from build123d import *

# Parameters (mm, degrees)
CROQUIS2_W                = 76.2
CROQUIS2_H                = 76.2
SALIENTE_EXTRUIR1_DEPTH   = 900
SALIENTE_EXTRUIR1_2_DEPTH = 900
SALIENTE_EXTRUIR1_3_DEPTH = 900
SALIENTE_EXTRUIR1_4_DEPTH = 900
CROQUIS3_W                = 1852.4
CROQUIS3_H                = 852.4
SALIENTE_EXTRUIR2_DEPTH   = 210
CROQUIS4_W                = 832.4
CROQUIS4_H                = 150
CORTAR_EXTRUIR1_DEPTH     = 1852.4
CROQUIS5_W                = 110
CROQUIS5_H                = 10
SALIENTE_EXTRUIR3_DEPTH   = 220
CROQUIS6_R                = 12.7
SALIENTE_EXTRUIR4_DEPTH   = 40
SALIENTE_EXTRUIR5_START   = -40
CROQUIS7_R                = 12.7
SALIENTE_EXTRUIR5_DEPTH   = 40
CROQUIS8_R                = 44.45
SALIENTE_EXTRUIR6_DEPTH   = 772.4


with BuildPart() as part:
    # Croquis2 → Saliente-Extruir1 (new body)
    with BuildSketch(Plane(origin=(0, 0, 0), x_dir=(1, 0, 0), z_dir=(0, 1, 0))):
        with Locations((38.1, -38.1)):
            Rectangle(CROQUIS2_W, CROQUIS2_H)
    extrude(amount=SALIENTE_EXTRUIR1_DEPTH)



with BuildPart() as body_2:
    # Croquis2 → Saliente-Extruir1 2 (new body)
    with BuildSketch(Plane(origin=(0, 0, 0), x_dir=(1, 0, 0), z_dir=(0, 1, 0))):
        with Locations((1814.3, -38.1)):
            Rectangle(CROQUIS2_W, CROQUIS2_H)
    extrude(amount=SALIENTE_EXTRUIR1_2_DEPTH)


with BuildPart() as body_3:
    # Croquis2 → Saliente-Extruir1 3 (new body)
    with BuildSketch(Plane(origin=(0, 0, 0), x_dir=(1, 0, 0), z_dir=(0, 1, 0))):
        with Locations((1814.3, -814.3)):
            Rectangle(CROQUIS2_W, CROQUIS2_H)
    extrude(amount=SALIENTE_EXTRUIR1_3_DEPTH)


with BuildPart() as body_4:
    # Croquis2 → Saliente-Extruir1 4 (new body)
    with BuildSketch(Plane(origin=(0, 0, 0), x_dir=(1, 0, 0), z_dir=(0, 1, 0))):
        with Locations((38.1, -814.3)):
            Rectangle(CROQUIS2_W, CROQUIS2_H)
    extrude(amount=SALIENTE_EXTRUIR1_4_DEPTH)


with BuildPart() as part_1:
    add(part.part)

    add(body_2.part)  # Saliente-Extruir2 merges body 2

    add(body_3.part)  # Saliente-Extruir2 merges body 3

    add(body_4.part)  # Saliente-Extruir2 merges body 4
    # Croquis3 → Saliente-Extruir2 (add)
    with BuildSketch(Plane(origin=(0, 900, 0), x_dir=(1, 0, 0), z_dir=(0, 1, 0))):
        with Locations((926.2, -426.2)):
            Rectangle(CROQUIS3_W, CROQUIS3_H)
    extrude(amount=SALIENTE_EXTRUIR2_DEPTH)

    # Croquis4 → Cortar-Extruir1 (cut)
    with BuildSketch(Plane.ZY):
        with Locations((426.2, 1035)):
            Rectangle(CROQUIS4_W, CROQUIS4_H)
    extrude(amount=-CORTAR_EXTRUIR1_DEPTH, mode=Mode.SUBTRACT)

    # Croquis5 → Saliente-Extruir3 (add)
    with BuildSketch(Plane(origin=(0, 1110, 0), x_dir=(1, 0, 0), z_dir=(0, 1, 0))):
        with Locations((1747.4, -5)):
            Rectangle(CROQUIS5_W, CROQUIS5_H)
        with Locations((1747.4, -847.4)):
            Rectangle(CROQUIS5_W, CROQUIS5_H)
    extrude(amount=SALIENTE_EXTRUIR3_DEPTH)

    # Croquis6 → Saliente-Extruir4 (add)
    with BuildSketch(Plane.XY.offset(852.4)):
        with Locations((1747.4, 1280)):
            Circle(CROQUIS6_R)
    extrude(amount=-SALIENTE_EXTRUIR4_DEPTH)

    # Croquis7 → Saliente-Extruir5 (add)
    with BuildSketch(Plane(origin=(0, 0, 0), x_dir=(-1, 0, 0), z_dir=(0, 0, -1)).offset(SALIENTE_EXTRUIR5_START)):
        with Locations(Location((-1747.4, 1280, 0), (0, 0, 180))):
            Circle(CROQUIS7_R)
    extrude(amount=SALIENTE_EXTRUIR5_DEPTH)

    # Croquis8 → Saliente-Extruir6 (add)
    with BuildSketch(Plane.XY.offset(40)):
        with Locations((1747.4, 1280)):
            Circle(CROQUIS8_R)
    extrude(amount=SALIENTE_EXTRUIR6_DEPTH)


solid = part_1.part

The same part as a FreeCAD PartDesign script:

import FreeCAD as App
import Part
import Sketcher

V = App.Vector
Q = App.Units.Quantity

doc = App.newDocument("Part")
params = doc.addObject("Spreadsheet::Sheet", "Params")
for row, (alias, value) in enumerate([
    ("sketch1_width", "76.2 mm"),
    ("pad1_length", "900 mm"),
    ("sketch2_width", "76.2 mm"),
    ("pad2_length", "900 mm"),
    ("sketch3_width", "76.2 mm"),
    ("pad3_length", "900 mm"),
    ("sketch4_width", "76.2 mm"),
    ("pad4_length", "900 mm"),
    ("sketch5_width", "1852.4 mm"),
    ("sketch5_height", "852.4 mm"),
    ("pad5_length", "210 mm"),
    ("sketch6_width", "150 mm"),
    ("sketch6_height", "832.4 mm"),
    ("pocket1_length", "1852.4 mm"),
    ("sketch7_width", "110 mm"),
    ("sketch7_height", "10 mm"),
    ("pad6_length", "220 mm"),
    ("sketch8_diameter", "25.4 mm"),
    ("pad7_length", "40 mm"),
    ("sketch9_diameter", "25.4 mm"),
    ("pad8_length", "40 mm"),
    ("sketch10_diameter", "88.9 mm"),
    ("pad9_length", "772.4 mm"),
], start=1):
    params.set(f"A{row}", alias)
    params.set(f"B{row}", "=" + value)
    params.setAlias(f"B{row}", alias)

body = doc.addObject("PartDesign::Body", "Body")

# Sketch on XZ plane
sketch1 = body.newObject("Sketcher::SketchObject", "Sketch")
sketch1.AttachmentSupport = (doc.getObject("XZ_Plane"), [""])
sketch1.MapMode = "FlatFace"
sketch1.addGeometry([
    Part.LineSegment(V(0, 0, 0), V(0, 76, 0)),
    Part.LineSegment(V(0, 76, 0), V(76, 76, 0)),
    Part.LineSegment(V(76, 76, 0), V(76, 0, 0)),
    Part.LineSegment(V(76, 0, 0), V(0, 0, 0)),
], False)
sketch1.addConstraint([
    Sketcher.Constraint("Coincident", 0, 2, 1, 1),
    Sketcher.Constraint("Coincident", 1, 2, 2, 1),
    Sketcher.Constraint("Coincident", 2, 2, 3, 1),
    Sketcher.Constraint("Coincident", 3, 2, 0, 1),
    Sketcher.Constraint("Vertical", 0),
    Sketcher.Constraint("Horizontal", 1),
    Sketcher.Constraint("Vertical", 2),
    Sketcher.Constraint("Horizontal", 3),
    Sketcher.Constraint("Coincident", 3, 2, -1, 1),
    Sketcher.Constraint("Equal", 3, 0),
    Sketcher.Constraint("DistanceX", 1, 1, 1, 2, Q("76.2 mm")),
])
sketch1.setExpression("Constraints[10]", "Params.sketch1_width")
pad1 = body.newObject("PartDesign::Pad", "Pad")
pad1.Profile = sketch1
pad1.setExpression("Length", "Params.pad1_length")
pad1.Reversed = True
body2 = doc.addObject("PartDesign::Body", "Body001")

# Sketch on XZ plane
sketch2 = body2.newObject("Sketcher::SketchObject", "Sketch001")
sketch2.AttachmentSupport = (doc.getObject("XZ_Plane001"), [""])
sketch2.MapMode = "FlatFace"
sketch2.addGeometry([
    Part.LineSegment(V(1776, 0, 0), V(1776, 76, 0)),
    Part.LineSegment(V(1776, 76, 0), V(1852, 76, 0)),
    Part.LineSegment(V(1852, 76, 0), V(1852, 0, 0)),
    Part.LineSegment(V(1852, 0, 0), V(1776, 0, 0)),
], False)
sketch2.addConstraint([
    Sketcher.Constraint("Coincident", 0, 2, 1, 1),
    Sketcher.Constraint("Coincident", 1, 2, 2, 1),
    Sketcher.Constraint("Coincident", 2, 2, 3, 1),
    Sketcher.Constraint("Coincident", 3, 2, 0, 1),
    Sketcher.Constraint("Vertical", 0),
    Sketcher.Constraint("Horizontal", 1),
    Sketcher.Constraint("Vertical", 2),
    Sketcher.Constraint("Horizontal", 3),
    Sketcher.Constraint("PointOnObject", 2, 2, -1),
    Sketcher.Constraint("Equal", 3, 0),
    Sketcher.Constraint("DistanceX", 1, 1, 1, 2, Q("76.2 mm")),
    Sketcher.Constraint("DistanceX", -1, 1, 0, 2, Q("1776.2 mm")),
])
sketch2.setExpression("Constraints[10]", "Params.sketch2_width")
pad2 = body2.newObject("PartDesign::Pad", "Pad001")
pad2.Profile = sketch2
pad2.setExpression("Length", "Params.pad2_length")
pad2.Reversed = True
body3 = doc.addObject("PartDesign::Body", "Body002")

# Sketch on XZ plane
sketch3 = body3.newObject("Sketcher::SketchObject", "Sketch002")
sketch3.AttachmentSupport = (doc.getObject("XZ_Plane002"), [""])
sketch3.MapMode = "FlatFace"
sketch3.addGeometry([
    Part.LineSegment(V(1776, 776, 0), V(1776, 852, 0)),
    Part.LineSegment(V(1776, 852, 0), V(1852, 852, 0)),
    Part.LineSegment(V(1852, 852, 0), V(1852, 776, 0)),
    Part.LineSegment(V(1852, 776, 0), V(1776, 776, 0)),
], False)
sketch3.addConstraint([
    Sketcher.Constraint("Coincident", 0, 2, 1, 1),
    Sketcher.Constraint("Coincident", 1, 2, 2, 1),
    Sketcher.Constraint("Coincident", 2, 2, 3, 1),
    Sketcher.Constraint("Coincident", 3, 2, 0, 1),
    Sketcher.Constraint("Vertical", 0),
    Sketcher.Constraint("Horizontal", 1),
    Sketcher.Constraint("Vertical", 2),
    Sketcher.Constraint("Horizontal", 3),
    Sketcher.Constraint("Equal", 3, 0),
    Sketcher.Constraint("DistanceX", 1, 1, 1, 2, Q("76.2 mm")),
    Sketcher.Constraint("DistanceX", -1, 1, 0, 2, Q("1776.2 mm")),
    Sketcher.Constraint("DistanceY", -1, 1, 0, 2, Q("852.4 mm")),
])
sketch3.setExpression("Constraints[9]", "Params.sketch3_width")
pad3 = body3.newObject("PartDesign::Pad", "Pad002")
pad3.Profile = sketch3
pad3.setExpression("Length", "Params.pad3_length")
pad3.Reversed = True
body4 = doc.addObject("PartDesign::Body", "Body003")

# Sketch on XZ plane
sketch4 = body4.newObject("Sketcher::SketchObject", "Sketch003")
sketch4.AttachmentSupport = (doc.getObject("XZ_Plane003"), [""])
sketch4.MapMode = "FlatFace"
sketch4.addGeometry([
    Part.LineSegment(V(0, 776, 0), V(0, 852, 0)),
    Part.LineSegment(V(0, 852, 0), V(76, 852, 0)),
    Part.LineSegment(V(76, 852, 0), V(76, 776, 0)),
    Part.LineSegment(V(76, 776, 0), V(0, 776, 0)),
], False)
sketch4.addConstraint([
    Sketcher.Constraint("Coincident", 0, 2, 1, 1),
    Sketcher.Constraint("Coincident", 1, 2, 2, 1),
    Sketcher.Constraint("Coincident", 2, 2, 3, 1),
    Sketcher.Constraint("Coincident", 3, 2, 0, 1),
    Sketcher.Constraint("Vertical", 0),
    Sketcher.Constraint("Horizontal", 1),
    Sketcher.Constraint("Vertical", 2),
    Sketcher.Constraint("Horizontal", 3),
    Sketcher.Constraint("PointOnObject", 0, 2, -2),
    Sketcher.Constraint("Equal", 3, 0),
    Sketcher.Constraint("DistanceX", 1, 1, 1, 2, Q("76.2 mm")),
    Sketcher.Constraint("DistanceY", -1, 1, 0, 2, Q("852.4 mm")),
])
sketch4.setExpression("Constraints[10]", "Params.sketch4_width")
pad4 = body4.newObject("PartDesign::Pad", "Pad003")
pad4.Profile = sketch4
pad4.setExpression("Length", "Params.pad4_length")
pad4.Reversed = True
body.AllowCompound = True
doc.recompute()

boolean = body.newObject("PartDesign::Boolean", "Boolean")
boolean.Type = "Fuse"
boolean.addObjects([body2])
doc.recompute()

boolean2 = body.newObject("PartDesign::Boolean", "Boolean001")
boolean2.Type = "Fuse"
boolean2.addObjects([body3])
doc.recompute()

boolean3 = body.newObject("PartDesign::Boolean", "Boolean002")
boolean3.Type = "Fuse"
boolean3.addObjects([body4])

# Sketch on XZ plane
sketch5 = body.newObject("Sketcher::SketchObject", "Sketch004")
sketch5.AttachmentSupport = (doc.getObject("XZ_Plane"), [""])
sketch5.MapMode = "FlatFace"
sketch5.AttachmentOffset = App.Placement(V(0, 0, -900), App.Rotation())
sketch5.addGeometry([
    Part.LineSegment(V(0, 0, 0), V(0, 852, 0)),
    Part.LineSegment(V(0, 852, 0), V(1852, 852, 0)),
    Part.LineSegment(V(1852, 852, 0), V(1852, 0, 0)),
    Part.LineSegment(V(1852, 0, 0), V(0, 0, 0)),
], False)
sketch5.addConstraint([
    Sketcher.Constraint("Coincident", 0, 2, 1, 1),
    Sketcher.Constraint("Coincident", 1, 2, 2, 1),
    Sketcher.Constraint("Coincident", 2, 2, 3, 1),
    Sketcher.Constraint("Coincident", 3, 2, 0, 1),
    Sketcher.Constraint("Vertical", 0),
    Sketcher.Constraint("Horizontal", 1),
    Sketcher.Constraint("Vertical", 2),
    Sketcher.Constraint("Horizontal", 3),
    Sketcher.Constraint("Coincident", 3, 2, -1, 1),
    Sketcher.Constraint("DistanceX", 1, 1, 1, 2, Q("1852.4 mm")),
    Sketcher.Constraint("DistanceY", 0, 1, 0, 2, Q("852.4 mm")),
])
sketch5.setExpression("Constraints[9]", "Params.sketch5_width")
sketch5.setExpression("Constraints[10]", "Params.sketch5_height")
pad5 = body.newObject("PartDesign::Pad", "Pad004")
pad5.Profile = sketch5
pad5.setExpression("Length", "Params.pad5_length")
pad5.Reversed = True

# Sketch on YZ plane
sketch6 = body.newObject("Sketcher::SketchObject", "Sketch005")
sketch6.AttachmentSupport = (doc.getObject("YZ_Plane"), [""])
sketch6.MapMode = "FlatFace"
sketch6.addGeometry([
    Part.LineSegment(V(1110, 10, 0), V(960, 10, 0)),
    Part.LineSegment(V(960, 10, 0), V(960, 842, 0)),
    Part.LineSegment(V(960, 842, 0), V(1110, 842, 0)),
    Part.LineSegment(V(1110, 842, 0), V(1110, 10, 0)),
], False)
sketch6.addConstraint([
    Sketcher.Constraint("Coincident", 0, 2, 1, 1),
    Sketcher.Constraint("Coincident", 1, 2, 2, 1),
    Sketcher.Constraint("Coincident", 2, 2, 3, 1),
    Sketcher.Constraint("Coincident", 3, 2, 0, 1),
    Sketcher.Constraint("Horizontal", 0),
    Sketcher.Constraint("Vertical", 1),
    Sketcher.Constraint("Horizontal", 2),
    Sketcher.Constraint("Vertical", 3),
    Sketcher.Constraint("DistanceX", 0, 2, 0, 1, Q("150 mm")),
    Sketcher.Constraint("DistanceY", 1, 1, 1, 2, Q("832.4 mm")),
    Sketcher.Constraint("DistanceX", -1, 1, 0, 2, Q("960 mm")),
    Sketcher.Constraint("DistanceY", -1, 1, 0, 2, Q("10 mm")),
])
sketch6.setExpression("Constraints[8]", "Params.sketch6_width")
sketch6.setExpression("Constraints[9]", "Params.sketch6_height")
pocket1 = body.newObject("PartDesign::Pocket", "Pocket")
pocket1.Profile = sketch6
pocket1.setExpression("Length", "Params.pocket1_length")
pocket1.Reversed = True

# Sketch on XZ plane
sketch7 = body.newObject("Sketcher::SketchObject", "Sketch006")
sketch7.AttachmentSupport = (doc.getObject("XZ_Plane"), [""])
sketch7.MapMode = "FlatFace"
sketch7.AttachmentOffset = App.Placement(V(0, 0, -1110), App.Rotation())
sketch7.addGeometry([
    Part.LineSegment(V(1692, 0, 0), V(1692, 10, 0)),  # 0
    Part.LineSegment(V(1692, 10, 0), V(1802, 10, 0)),  # 1
    Part.LineSegment(V(1802, 10, 0), V(1802, 0, 0)),  # 2
    Part.LineSegment(V(1802, 0, 0), V(1692, 0, 0)),  # 3
    Part.LineSegment(V(1692, 842, 0), V(1692, 852, 0)),  # 4
    Part.LineSegment(V(1692, 852, 0), V(1802, 852, 0)),  # 5
    Part.LineSegment(V(1802, 852, 0), V(1802, 842, 0)),  # 6
    Part.LineSegment(V(1802, 842, 0), V(1692, 842, 0)),  # 7
], False)
sketch7.addConstraint([
    Sketcher.Constraint("Coincident", 0, 2, 1, 1),
    Sketcher.Constraint("Coincident", 1, 2, 2, 1),
    Sketcher.Constraint("Coincident", 2, 2, 3, 1),
    Sketcher.Constraint("Coincident", 3, 2, 0, 1),
    Sketcher.Constraint("Coincident", 4, 2, 5, 1),
    Sketcher.Constraint("Coincident", 5, 2, 6, 1),
    Sketcher.Constraint("Coincident", 6, 2, 7, 1),
    Sketcher.Constraint("Coincident", 7, 2, 4, 1),
    Sketcher.Constraint("Vertical", 0),
    Sketcher.Constraint("Horizontal", 1),
    Sketcher.Constraint("Vertical", 2),
    Sketcher.Constraint("Horizontal", 3),
    Sketcher.Constraint("Vertical", 4),
    Sketcher.Constraint("Horizontal", 5),
    Sketcher.Constraint("Vertical", 6),
    Sketcher.Constraint("Horizontal", 7),
    Sketcher.Constraint("PointOnObject", 2, 2, -1),
    Sketcher.Constraint("Vertical", 3, 2, 4, 2),
    Sketcher.Constraint("Vertical", 2, 2, 5, 2),
    Sketcher.Constraint("Equal", 2, 4),
    Sketcher.Constraint("DistanceX", 1, 1, 1, 2, Q("110 mm")),
    Sketcher.Constraint("DistanceY", 0, 1, 0, 2, Q("10 mm")),
    Sketcher.Constraint("DistanceX", -1, 1, 0, 2, Q("1692.4 mm")),
    Sketcher.Constraint("DistanceY", -1, 1, 4, 2, Q("852.4 mm")),
])
sketch7.setExpression("Constraints[20]", "Params.sketch7_width")
sketch7.setExpression("Constraints[21]", "Params.sketch7_height")
pad6 = body.newObject("PartDesign::Pad", "Pad005")
pad6.Profile = sketch7
pad6.setExpression("Length", "Params.pad6_length")
pad6.Reversed = True

# Sketch on XY plane
sketch8 = body.newObject("Sketcher::SketchObject", "Sketch007")
sketch8.AttachmentSupport = (doc.getObject("XY_Plane"), [""])
sketch8.MapMode = "FlatFace"
sketch8.AttachmentOffset = App.Placement(V(0, 0, 852.4), App.Rotation())
sketch8.addGeometry(Part.Circle(V(1747, 1280, 0), V(0, 0, 1), 13), False)
sketch8.addConstraint([
    Sketcher.Constraint("Diameter", 0, Q("25.4 mm")),
    Sketcher.Constraint("DistanceY", -1, 1, 0, 3, Q("1280 mm")),
    Sketcher.Constraint("DistanceX", -1, 1, 0, 3, Q("1747.4 mm")),
])
sketch8.setExpression("Constraints[0]", "Params.sketch8_diameter")
pad7 = body.newObject("PartDesign::Pad", "Pad006")
pad7.Profile = sketch8
pad7.setExpression("Length", "Params.pad7_length")
pad7.Reversed = True

# Sketch on XY plane
sketch9 = body.newObject("Sketcher::SketchObject", "Sketch008")
sketch9.AttachmentSupport = (doc.getObject("XY_Plane"), [""])
sketch9.MapMode = "FlatFace"
sketch9.AttachmentOffset = App.Placement(V(0, 0, 40), App.Rotation())
sketch9.addGeometry(Part.Circle(V(1747, 1280, 0), V(0, 0, 1), 13), False)
sketch9.addConstraint([
    Sketcher.Constraint("Diameter", 0, Q("25.4 mm")),
    Sketcher.Constraint("DistanceY", -1, 1, 0, 3, Q("1280 mm")),
    Sketcher.Constraint("DistanceX", -1, 1, 0, 3, Q("1747.4 mm")),
])
sketch9.setExpression("Constraints[0]", "Params.sketch9_diameter")
pad8 = body.newObject("PartDesign::Pad", "Pad007")
pad8.Profile = sketch9
pad8.setExpression("Length", "Params.pad8_length")
pad8.Reversed = True

# Sketch on XY plane
sketch10 = body.newObject("Sketcher::SketchObject", "Sketch009")
sketch10.AttachmentSupport = (doc.getObject("XY_Plane"), [""])
sketch10.MapMode = "FlatFace"
sketch10.AttachmentOffset = App.Placement(V(0, 0, 40), App.Rotation())
sketch10.addGeometry(Part.Circle(V(1747, 1280, 0), V(0, 0, 1), 44), False)
sketch10.addConstraint([
    Sketcher.Constraint("Diameter", 0, Q("88.9 mm")),
    Sketcher.Constraint("DistanceY", -1, 1, 0, 3, Q("1280 mm")),
    Sketcher.Constraint("DistanceX", -1, 1, 0, 3, Q("1747.4 mm")),
])
sketch10.setExpression("Constraints[0]", "Params.sketch10_diameter")
pad9 = body.newObject("PartDesign::Pad", "Pad008")
pad9.Profile = sketch10
pad9.setExpression("Length", "Params.pad9_length")

doc.recompute()
